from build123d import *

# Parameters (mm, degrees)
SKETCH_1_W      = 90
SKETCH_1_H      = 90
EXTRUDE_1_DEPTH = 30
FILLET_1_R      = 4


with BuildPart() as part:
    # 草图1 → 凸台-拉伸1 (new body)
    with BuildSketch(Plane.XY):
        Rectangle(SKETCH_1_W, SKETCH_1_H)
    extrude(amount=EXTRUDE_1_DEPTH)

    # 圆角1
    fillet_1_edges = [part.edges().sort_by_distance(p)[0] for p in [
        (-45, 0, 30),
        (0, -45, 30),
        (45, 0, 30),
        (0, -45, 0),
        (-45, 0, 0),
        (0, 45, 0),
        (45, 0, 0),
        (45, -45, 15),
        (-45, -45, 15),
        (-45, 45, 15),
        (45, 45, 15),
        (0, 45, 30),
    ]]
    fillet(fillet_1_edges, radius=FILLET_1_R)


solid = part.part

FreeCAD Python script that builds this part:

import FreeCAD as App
import Part
import Sketcher
from FreeCAD import Vector

doc = App.newDocument("Part")
body = doc.addObject("PartDesign::Body", "Body")

sketch1 = doc.addObject("Sketcher::SketchObject", "Sketch")
body.addObject(sketch1)
sketch1.AttachmentSupport = (doc.XY_Plane, [""])
sketch1.MapMode = "FlatFace"
sketch1.addGeometry([
    Part.LineSegment(Vector(-45, 45, 0), Vector(-45, -45, 0)),
    Part.LineSegment(Vector(-45, -45, 0), Vector(45, -45, 0)),
    Part.LineSegment(Vector(45, -45, 0), Vector(45, 45, 0)),
    Part.LineSegment(Vector(45, 45, 0), Vector(-45, 45, 0)),
], False)
sketch1.addConstraint([
    Sketcher.Constraint("Coincident", 0, 2, 1, 1),
    Sketcher.Constraint("Coincident", 1, 2, 2, 1),
    Sketcher.Constraint("Coincident", 2, 2, 3, 1),
    Sketcher.Constraint("Coincident", 3, 2, 0, 1),
    Sketcher.Constraint("Vertical", 0),
    Sketcher.Constraint("Horizontal", 1),
    Sketcher.Constraint("Vertical", 2),
    Sketcher.Constraint("Horizontal", 3),
    Sketcher.Constraint("Symmetric", 0, 2, 2, 2, -1, 1),
    Sketcher.Constraint("Equal", 3, 0),
    Sketcher.Constraint("DistanceX", 1, 1, 1, 2, 90.0),
])
pad1 = doc.addObject("PartDesign::Pad", "Pad")
body.addObject(pad1)
pad1.Profile = sketch1
pad1.Length = 30
doc.recompute()

fillet = doc.addObject("PartDesign::Fillet", "Fillet")
body.addObject(fillet)
fillet.Base = (pad1, ["Edge1"])
fillet.UseAllEdges = True
fillet.Radius = 4

doc.recompute()
